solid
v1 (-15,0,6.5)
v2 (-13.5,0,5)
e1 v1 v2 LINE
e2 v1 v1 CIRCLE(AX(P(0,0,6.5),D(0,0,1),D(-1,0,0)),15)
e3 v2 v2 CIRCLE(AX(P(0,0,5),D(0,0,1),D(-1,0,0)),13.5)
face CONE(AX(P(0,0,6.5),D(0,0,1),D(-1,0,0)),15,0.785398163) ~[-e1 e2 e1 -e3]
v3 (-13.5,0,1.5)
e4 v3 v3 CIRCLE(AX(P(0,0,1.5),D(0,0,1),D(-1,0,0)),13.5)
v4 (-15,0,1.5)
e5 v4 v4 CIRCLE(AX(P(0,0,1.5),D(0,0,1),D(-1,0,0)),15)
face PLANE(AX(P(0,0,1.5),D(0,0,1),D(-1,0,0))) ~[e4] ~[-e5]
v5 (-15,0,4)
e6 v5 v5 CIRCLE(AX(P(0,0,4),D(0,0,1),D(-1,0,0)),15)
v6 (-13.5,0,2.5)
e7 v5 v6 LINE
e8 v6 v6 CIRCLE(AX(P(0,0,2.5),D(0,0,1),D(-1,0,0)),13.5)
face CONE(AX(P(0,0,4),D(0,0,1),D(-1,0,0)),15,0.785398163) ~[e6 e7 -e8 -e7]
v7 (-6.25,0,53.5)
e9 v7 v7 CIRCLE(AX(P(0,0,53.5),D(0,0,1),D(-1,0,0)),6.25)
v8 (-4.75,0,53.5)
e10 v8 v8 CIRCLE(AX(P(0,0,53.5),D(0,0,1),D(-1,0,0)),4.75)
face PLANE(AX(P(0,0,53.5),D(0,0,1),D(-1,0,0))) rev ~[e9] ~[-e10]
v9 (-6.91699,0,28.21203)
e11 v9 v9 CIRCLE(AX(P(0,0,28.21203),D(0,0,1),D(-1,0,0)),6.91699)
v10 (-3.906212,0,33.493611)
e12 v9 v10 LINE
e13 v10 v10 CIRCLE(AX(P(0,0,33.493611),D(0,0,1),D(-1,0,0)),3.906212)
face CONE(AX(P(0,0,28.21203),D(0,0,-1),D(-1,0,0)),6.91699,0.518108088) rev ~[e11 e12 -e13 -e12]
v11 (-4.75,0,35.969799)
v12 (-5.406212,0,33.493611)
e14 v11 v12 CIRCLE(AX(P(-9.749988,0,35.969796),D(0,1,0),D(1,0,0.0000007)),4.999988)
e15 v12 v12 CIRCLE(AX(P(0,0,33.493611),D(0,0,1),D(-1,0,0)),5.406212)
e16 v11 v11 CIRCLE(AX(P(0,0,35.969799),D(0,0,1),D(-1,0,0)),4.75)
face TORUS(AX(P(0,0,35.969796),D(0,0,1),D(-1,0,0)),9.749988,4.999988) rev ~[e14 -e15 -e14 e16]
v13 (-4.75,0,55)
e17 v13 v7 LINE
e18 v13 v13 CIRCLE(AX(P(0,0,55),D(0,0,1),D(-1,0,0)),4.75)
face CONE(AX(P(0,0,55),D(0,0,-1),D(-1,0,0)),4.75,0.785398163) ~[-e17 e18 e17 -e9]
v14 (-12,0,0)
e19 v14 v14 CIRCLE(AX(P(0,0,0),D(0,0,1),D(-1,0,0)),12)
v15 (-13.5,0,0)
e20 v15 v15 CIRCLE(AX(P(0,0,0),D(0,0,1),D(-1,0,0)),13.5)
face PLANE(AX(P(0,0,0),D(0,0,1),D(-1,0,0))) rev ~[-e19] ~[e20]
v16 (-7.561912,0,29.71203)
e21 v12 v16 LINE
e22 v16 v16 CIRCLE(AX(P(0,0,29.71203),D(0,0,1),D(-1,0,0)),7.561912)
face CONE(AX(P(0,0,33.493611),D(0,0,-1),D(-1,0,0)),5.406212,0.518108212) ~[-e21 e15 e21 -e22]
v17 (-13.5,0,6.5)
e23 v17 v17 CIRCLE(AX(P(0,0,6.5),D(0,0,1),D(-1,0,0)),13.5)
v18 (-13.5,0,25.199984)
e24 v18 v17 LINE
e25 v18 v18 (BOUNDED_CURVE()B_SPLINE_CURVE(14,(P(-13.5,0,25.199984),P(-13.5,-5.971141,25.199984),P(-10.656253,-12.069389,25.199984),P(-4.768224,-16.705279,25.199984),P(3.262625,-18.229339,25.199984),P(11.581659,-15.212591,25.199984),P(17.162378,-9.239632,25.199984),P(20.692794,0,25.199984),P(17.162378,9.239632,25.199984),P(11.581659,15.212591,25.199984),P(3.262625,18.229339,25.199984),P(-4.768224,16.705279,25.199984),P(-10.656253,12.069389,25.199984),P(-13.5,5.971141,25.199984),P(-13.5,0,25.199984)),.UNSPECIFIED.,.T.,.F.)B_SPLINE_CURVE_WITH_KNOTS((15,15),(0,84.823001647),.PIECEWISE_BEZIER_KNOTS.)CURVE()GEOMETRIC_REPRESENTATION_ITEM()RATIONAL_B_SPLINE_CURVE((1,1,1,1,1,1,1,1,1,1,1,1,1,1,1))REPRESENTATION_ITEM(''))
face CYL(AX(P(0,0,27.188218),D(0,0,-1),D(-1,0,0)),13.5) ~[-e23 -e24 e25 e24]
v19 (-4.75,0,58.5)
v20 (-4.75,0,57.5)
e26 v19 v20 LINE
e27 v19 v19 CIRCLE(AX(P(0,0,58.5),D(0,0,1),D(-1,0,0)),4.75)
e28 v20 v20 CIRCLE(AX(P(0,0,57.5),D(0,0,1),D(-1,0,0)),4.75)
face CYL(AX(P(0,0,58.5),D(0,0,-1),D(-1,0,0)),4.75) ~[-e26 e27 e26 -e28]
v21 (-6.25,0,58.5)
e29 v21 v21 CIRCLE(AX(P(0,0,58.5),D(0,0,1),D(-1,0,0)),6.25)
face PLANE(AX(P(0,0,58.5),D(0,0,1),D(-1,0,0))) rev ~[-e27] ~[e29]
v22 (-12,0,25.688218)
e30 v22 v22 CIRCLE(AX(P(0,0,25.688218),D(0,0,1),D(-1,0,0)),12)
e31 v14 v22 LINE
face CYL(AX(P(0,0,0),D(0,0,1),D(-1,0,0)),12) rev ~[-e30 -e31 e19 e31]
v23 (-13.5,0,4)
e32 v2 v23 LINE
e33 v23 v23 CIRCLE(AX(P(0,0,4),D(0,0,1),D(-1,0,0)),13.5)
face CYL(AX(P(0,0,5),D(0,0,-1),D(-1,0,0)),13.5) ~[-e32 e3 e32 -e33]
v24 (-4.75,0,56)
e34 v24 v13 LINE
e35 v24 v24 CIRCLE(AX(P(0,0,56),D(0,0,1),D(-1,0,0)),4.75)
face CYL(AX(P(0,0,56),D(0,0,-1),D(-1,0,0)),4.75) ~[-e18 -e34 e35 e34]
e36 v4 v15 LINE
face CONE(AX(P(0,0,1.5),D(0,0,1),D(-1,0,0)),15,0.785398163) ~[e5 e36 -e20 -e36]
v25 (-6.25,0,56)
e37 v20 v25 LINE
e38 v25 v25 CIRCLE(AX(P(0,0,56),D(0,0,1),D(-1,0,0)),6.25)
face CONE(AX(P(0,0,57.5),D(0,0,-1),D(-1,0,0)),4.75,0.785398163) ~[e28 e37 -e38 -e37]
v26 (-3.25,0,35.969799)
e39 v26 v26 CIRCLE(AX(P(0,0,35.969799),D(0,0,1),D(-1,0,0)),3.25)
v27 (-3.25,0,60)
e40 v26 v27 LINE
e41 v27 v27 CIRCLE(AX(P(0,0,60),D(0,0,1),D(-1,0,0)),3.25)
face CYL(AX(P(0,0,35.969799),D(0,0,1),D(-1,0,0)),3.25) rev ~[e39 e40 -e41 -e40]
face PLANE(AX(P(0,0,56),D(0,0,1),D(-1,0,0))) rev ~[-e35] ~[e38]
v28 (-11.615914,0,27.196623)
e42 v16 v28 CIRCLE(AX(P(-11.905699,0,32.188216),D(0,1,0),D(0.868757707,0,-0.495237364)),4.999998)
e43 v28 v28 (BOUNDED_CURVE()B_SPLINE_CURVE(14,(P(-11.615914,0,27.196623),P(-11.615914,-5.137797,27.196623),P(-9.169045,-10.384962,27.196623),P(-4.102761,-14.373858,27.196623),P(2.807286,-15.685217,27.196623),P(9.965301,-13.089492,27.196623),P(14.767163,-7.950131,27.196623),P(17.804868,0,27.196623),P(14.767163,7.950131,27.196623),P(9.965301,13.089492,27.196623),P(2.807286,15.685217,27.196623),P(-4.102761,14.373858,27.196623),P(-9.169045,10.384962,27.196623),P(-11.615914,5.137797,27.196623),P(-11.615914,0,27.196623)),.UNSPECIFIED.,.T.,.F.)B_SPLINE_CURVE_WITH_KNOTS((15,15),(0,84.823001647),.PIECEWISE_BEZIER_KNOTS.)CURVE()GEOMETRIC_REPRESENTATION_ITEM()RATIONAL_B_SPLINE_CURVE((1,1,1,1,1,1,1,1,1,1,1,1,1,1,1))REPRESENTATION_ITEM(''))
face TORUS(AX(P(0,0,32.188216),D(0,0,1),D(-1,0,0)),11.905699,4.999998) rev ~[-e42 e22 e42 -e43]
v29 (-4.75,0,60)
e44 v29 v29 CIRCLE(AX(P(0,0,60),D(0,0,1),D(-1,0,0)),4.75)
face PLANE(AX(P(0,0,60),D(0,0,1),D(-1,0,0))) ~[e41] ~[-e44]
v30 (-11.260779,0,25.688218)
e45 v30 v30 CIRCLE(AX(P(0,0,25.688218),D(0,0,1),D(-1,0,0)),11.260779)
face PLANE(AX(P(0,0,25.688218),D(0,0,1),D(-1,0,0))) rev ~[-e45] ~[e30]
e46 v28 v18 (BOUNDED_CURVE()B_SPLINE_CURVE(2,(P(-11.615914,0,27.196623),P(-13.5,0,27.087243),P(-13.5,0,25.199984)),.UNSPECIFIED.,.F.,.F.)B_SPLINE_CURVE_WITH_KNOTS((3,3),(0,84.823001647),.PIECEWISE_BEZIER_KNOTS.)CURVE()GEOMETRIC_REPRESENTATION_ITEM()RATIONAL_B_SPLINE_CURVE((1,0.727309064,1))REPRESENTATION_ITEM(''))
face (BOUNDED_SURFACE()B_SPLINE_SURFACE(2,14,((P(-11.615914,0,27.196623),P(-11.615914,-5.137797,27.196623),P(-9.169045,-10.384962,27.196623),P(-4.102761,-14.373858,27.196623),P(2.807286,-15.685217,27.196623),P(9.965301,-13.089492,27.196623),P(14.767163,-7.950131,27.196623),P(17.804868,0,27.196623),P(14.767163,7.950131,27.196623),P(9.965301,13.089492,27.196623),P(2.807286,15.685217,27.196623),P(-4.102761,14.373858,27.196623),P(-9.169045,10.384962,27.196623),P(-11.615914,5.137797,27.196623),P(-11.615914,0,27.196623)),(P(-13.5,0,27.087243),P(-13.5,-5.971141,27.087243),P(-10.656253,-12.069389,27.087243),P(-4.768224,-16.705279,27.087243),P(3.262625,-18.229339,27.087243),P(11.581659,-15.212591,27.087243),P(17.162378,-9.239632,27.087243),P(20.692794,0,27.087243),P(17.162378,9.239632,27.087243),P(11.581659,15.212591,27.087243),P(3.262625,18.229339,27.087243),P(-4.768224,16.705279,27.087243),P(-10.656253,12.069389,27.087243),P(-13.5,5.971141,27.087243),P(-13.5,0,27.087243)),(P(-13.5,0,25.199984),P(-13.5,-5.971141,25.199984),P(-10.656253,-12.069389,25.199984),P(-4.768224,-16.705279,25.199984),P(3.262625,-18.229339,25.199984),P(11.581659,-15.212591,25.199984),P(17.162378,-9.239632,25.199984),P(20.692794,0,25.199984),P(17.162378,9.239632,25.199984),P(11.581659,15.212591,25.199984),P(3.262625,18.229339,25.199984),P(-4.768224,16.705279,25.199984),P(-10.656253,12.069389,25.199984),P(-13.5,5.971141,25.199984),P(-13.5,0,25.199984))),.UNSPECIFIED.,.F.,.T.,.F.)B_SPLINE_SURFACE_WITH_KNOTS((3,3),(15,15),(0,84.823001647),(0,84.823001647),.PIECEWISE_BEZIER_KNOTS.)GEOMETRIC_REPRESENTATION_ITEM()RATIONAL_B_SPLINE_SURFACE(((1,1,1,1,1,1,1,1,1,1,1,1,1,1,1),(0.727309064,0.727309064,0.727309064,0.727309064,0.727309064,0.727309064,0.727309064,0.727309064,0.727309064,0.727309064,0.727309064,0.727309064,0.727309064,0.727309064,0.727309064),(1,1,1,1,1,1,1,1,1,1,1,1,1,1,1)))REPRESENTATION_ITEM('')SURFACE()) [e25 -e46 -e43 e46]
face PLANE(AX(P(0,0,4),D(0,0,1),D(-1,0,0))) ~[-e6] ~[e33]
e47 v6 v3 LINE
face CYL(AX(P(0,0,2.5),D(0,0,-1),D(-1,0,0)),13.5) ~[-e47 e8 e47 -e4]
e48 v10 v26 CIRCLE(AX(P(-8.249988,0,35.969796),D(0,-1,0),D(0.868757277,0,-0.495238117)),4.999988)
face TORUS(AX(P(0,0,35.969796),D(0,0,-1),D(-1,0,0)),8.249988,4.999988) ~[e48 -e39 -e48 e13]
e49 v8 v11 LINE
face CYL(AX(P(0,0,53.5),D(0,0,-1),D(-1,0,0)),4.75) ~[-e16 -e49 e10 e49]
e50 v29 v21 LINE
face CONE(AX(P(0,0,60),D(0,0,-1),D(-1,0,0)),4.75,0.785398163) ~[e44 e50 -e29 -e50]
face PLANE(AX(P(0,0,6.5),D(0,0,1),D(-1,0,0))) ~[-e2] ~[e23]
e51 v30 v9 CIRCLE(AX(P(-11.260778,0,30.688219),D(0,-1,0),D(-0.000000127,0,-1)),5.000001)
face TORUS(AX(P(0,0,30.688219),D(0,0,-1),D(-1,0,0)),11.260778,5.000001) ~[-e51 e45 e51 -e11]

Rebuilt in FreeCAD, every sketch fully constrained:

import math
import FreeCAD as App
import Part
import Sketcher

V = App.Vector


def edges_at(feature, points):
    """Names of the edges that pass closest to the given points."""
    edges = feature.Shape.Edges
    near = lambda p: min(range(len(edges)), key=lambda i: edges[i].distToShape(Part.Vertex(*p))[0])
    return sorted({f"Edge{near(p) + 1}" for p in points})

doc = App.newDocument("Part")
body = doc.addObject("PartDesign::Body", "Body")

# Sketch on XZ plane
sketch1 = body.newObject("Sketcher::SketchObject", "Sketch")
sketch1.AttachmentSupport = (doc.getObject("XZ_Plane"), [""])
sketch1.MapMode = "FlatFace"
sketch1.addGeometry([
    Part.LineSegment(V(-13.5, 2.5, 0), V(-13.5, 1.5, 0)),  # 0
    Part.LineSegment(V(-13.5, 1.5, 0), V(-15, 1.5, 0)),  # 1
    Part.LineSegment(V(-15, 1.5, 0), V(-13.5, 0, 0)),  # 2
    Part.LineSegment(V(-13.5, 0, 0), V(-12, 0, 0)),  # 3
    Part.LineSegment(V(-12, 0, 0), V(-12, 25.7, 0)),  # 4
    Part.LineSegment(V(-12, 25.7, 0), V(-11.3, 25.7, 0)),  # 5
    Part.ArcOfCircle(Part.Circle(V(-11.3, 30.7, 0), V(0, 0, 1), 5), math.radians(-90), math.radians(-30)),  # 6
    Part.LineSegment(V(-6.9, 28.2, 0), V(-3.9, 33.5, 0)),  # 7
    Part.ArcOfCircle(Part.Circle(V(-8.2, 36, 0), V(0, 0, 1), 5), math.radians(-30), math.radians(0)),  # 8
    Part.LineSegment(V(-3.2, 36, 0), V(-3.2, 60, 0)),  # 9
    Part.LineSegment(V(-3.2, 60, 0), V(-4.8, 60, 0)),  # 10
    Part.LineSegment(V(-4.8, 60, 0), V(-6.2, 58.5, 0)),  # 11
    Part.LineSegment(V(-6.2, 58.5, 0), V(-4.8, 58.5, 0)),  # 12
    Part.LineSegment(V(-4.8, 58.5, 0), V(-4.8, 57.5, 0)),  # 13
    Part.LineSegment(V(-4.8, 57.5, 0), V(-6.2, 56, 0)),  # 14
    Part.LineSegment(V(-6.2, 56, 0), V(-4.8, 56, 0)),  # 15
    Part.LineSegment(V(-4.8, 56, 0), V(-4.8, 55, 0)),  # 16
    Part.LineSegment(V(-4.8, 55, 0), V(-6.2, 53.5, 0)),  # 17
    Part.LineSegment(V(-6.2, 53.5, 0), V(-4.8, 53.5, 0)),  # 18
    Part.LineSegment(V(-4.8, 53.5, 0), V(-4.8, 36, 0)),  # 19
    Part.ArcOfCircle(Part.Circle(V(-9.7, 36, 0), V(0, 0, 1), 5), math.radians(-30), math.radians(0)),  # 20
    Part.LineSegment(V(-5.4, 33.5, 0), V(-7.6, 29.7, 0)),  # 21
    Part.ArcOfCircle(Part.Circle(V(-11.9, 32.2, 0), V(0, 0, 1), 5), math.radians(-90), math.radians(-30)),  # 22
    Part.LineSegment(V(-11.9, 27.2, 0), V(-13.5, 27.2, 0)),  # 23
    Part.LineSegment(V(-13.5, 27.2, 0), V(-13.5, 6.5, 0)),  # 24
    Part.LineSegment(V(-13.5, 6.5, 0), V(-15, 6.5, 0)),  # 25
    Part.LineSegment(V(-15, 6.5, 0), V(-13.5, 5, 0)),  # 26
    Part.LineSegment(V(-13.5, 5, 0), V(-13.5, 4, 0)),  # 27
    Part.LineSegment(V(-13.5, 4, 0), V(-15, 4, 0)),  # 28
    Part.LineSegment(V(-15, 4, 0), V(-13.5, 2.5, 0)),  # 29
], False)
sketch1.addConstraint([
    Sketcher.Constraint("Coincident", 0, 2, 1, 1),
    Sketcher.Constraint("Coincident", 1, 2, 2, 1),
    Sketcher.Constraint("Coincident", 2, 2, 3, 1),
    Sketcher.Constraint("Coincident", 3, 2, 4, 1),
    Sketcher.Constraint("Coincident", 4, 2, 5, 1),
    Sketcher.Constraint("Tangent", 5, 2, 6, 1),
    Sketcher.Constraint("Tangent", 6, 2, 7, 1),
    Sketcher.Constraint("Tangent", 7, 2, 8, 1),
    Sketcher.Constraint("Tangent", 8, 2, 9, 1),
    Sketcher.Constraint("Coincident", 9, 2, 10, 1),
    Sketcher.Constraint("Coincident", 10, 2, 11, 1),
    Sketcher.Constraint("Coincident", 11, 2, 12, 1),
    Sketcher.Constraint("Coincident", 12, 2, 13, 1),
    Sketcher.Constraint("Coincident", 13, 2, 14, 1),
    Sketcher.Constraint("Coincident", 14, 2, 15, 1),
    Sketcher.Constraint("Coincident", 15, 2, 16, 1),
    Sketcher.Constraint("Coincident", 16, 2, 17, 1),
    Sketcher.Constraint("Coincident", 17, 2, 18, 1),
    Sketcher.Constraint("Coincident", 18, 2, 19, 1),
    Sketcher.Constraint("Tangent", 19, 2, 20, 2),
    Sketcher.Constraint("Tangent", 20, 1, 21, 1),
    Sketcher.Constraint("Tangent", 21, 2, 22, 2),
    Sketcher.Constraint("Tangent", 22, 1, 23, 1),
    Sketcher.Constraint("Coincident", 23, 2, 24, 1),
    Sketcher.Constraint("Coincident", 24, 2, 25, 1),
    Sketcher.Constraint("Coincident", 25, 2, 26, 1),
    Sketcher.Constraint("Coincident", 26, 2, 27, 1),
    Sketcher.Constraint("Coincident", 27, 2, 28, 1),
    Sketcher.Constraint("Coincident", 28, 2, 29, 1),
    Sketcher.Constraint("Coincident", 29, 2, 0, 1),
    Sketcher.Constraint("Vertical", 0),
    Sketcher.Constraint("Horizontal", 1),
    Sketcher.Constraint("Horizontal", 3),
    Sketcher.Constraint("Vertical", 4),
    Sketcher.Constraint("Horizontal", 5),
    Sketcher.Constraint("Vertical", 9),
    Sketcher.Constraint("Horizontal", 10),
    Sketcher.Constraint("Horizontal", 12),
    Sketcher.Constraint("Vertical", 13),
    Sketcher.Constraint("Horizontal", 15),
    Sketcher.Constraint("Vertical", 16),
    Sketcher.Constraint("Horizontal", 18),
    Sketcher.Constraint("Vertical", 19),
    Sketcher.Constraint("Horizontal", 23),
    Sketcher.Constraint("Vertical", 24),
    Sketcher.Constraint("Horizontal", 25),
    Sketcher.Constraint("Vertical", 27),
    Sketcher.Constraint("Horizontal", 28),
    Sketcher.Constraint("Equal", 8, 20),
    Sketcher.Constraint("PointOnObject", 2, 2, -1),
    Sketcher.Constraint("Perpendicular", 2, 11),
    Sketcher.Constraint("Parallel", 11, 14),
    Sketcher.Constraint("Parallel", 14, 17),
    Sketcher.Constraint("Parallel", 7, 21),
    Sketcher.Constraint("Perpendicular", 17, 26),
    Sketcher.Constraint("Parallel", 26, 29),
    Sketcher.Constraint("Horizontal", 8, 3, 20, 3),
    Sketcher.Constraint("Vertical", 0, 2, 2, 2),
    Sketcher.Constraint("Vertical", 10, 2, 12, 2),
    Sketcher.Constraint("Vertical", 11, 2, 14, 2),
    Sketcher.Constraint("Vertical", 13, 2, 15, 2),
    Sketcher.Constraint("Vertical", 14, 2, 17, 2),
    Sketcher.Constraint("Vertical", 16, 2, 18, 2),
    Sketcher.Constraint("Vertical", 2, 2, 23, 2),
    Sketcher.Constraint("Vertical", 1, 2, 25, 2),
    Sketcher.Constraint("Vertical", 24, 2, 26, 2),
    Sketcher.Constraint("Vertical", 25, 2, 28, 2),
    Sketcher.Constraint("Equal", 1, 3),
    Sketcher.Constraint("Equal", 3, 10),
    Sketcher.Constraint("Equal", 10, 12),
    Sketcher.Constraint("Equal", 0, 13),
    Sketcher.Constraint("Equal", 13, 16),
    Sketcher.Constraint("Equal", 16, 27),
    Sketcher.Constraint("Equal", 2, 11),
    Sketcher.Constraint("Radius", 6, 5.000001),
    Sketcher.Constraint("DistanceY", 0, 2, 0, 1, 1.0),
    Sketcher.Constraint("DistanceX", 1, 2, 1, 1, 1.5),
    Sketcher.Constraint("DistanceX", 1, 2, -1, 1, 15.0),
    Sketcher.Constraint("DistanceY", -1, 1, 9, 2, 60.0),
    Sketcher.Constraint("DistanceY", 6, 2, 21, 2, 1.5),
    Sketcher.Constraint("DistanceY", 4, 2, 22, 1, 1.5),
    Sketcher.Constraint("DistanceX", 8, 2, -1, 1, 3.25),
    Sketcher.Constraint("DistanceX", 23, 2, 23, 1, 1.5943),
    Sketcher.Constraint("DistanceY", 9, 1, 9, 2, 24.030201),
    Sketcher.Constraint("Radius", 8, 4.999988),
    Sketcher.Constraint("DistanceX", 5, 1, 5, 2, 0.739221),
])
revolution = body.newObject("PartDesign::Revolution", "Revolution")
revolution.Profile = sketch1
revolution.ReferenceAxis = (sketch1, ["V_Axis"])
revolution.Angle = 360
doc.recompute()

fillet = body.newObject("PartDesign::Fillet", "Fillet")
fillet.Base = (revolution, edges_at(revolution, [(13.5, 0, 27.188)]))
fillet.Radius = 2

doc.recompute()
